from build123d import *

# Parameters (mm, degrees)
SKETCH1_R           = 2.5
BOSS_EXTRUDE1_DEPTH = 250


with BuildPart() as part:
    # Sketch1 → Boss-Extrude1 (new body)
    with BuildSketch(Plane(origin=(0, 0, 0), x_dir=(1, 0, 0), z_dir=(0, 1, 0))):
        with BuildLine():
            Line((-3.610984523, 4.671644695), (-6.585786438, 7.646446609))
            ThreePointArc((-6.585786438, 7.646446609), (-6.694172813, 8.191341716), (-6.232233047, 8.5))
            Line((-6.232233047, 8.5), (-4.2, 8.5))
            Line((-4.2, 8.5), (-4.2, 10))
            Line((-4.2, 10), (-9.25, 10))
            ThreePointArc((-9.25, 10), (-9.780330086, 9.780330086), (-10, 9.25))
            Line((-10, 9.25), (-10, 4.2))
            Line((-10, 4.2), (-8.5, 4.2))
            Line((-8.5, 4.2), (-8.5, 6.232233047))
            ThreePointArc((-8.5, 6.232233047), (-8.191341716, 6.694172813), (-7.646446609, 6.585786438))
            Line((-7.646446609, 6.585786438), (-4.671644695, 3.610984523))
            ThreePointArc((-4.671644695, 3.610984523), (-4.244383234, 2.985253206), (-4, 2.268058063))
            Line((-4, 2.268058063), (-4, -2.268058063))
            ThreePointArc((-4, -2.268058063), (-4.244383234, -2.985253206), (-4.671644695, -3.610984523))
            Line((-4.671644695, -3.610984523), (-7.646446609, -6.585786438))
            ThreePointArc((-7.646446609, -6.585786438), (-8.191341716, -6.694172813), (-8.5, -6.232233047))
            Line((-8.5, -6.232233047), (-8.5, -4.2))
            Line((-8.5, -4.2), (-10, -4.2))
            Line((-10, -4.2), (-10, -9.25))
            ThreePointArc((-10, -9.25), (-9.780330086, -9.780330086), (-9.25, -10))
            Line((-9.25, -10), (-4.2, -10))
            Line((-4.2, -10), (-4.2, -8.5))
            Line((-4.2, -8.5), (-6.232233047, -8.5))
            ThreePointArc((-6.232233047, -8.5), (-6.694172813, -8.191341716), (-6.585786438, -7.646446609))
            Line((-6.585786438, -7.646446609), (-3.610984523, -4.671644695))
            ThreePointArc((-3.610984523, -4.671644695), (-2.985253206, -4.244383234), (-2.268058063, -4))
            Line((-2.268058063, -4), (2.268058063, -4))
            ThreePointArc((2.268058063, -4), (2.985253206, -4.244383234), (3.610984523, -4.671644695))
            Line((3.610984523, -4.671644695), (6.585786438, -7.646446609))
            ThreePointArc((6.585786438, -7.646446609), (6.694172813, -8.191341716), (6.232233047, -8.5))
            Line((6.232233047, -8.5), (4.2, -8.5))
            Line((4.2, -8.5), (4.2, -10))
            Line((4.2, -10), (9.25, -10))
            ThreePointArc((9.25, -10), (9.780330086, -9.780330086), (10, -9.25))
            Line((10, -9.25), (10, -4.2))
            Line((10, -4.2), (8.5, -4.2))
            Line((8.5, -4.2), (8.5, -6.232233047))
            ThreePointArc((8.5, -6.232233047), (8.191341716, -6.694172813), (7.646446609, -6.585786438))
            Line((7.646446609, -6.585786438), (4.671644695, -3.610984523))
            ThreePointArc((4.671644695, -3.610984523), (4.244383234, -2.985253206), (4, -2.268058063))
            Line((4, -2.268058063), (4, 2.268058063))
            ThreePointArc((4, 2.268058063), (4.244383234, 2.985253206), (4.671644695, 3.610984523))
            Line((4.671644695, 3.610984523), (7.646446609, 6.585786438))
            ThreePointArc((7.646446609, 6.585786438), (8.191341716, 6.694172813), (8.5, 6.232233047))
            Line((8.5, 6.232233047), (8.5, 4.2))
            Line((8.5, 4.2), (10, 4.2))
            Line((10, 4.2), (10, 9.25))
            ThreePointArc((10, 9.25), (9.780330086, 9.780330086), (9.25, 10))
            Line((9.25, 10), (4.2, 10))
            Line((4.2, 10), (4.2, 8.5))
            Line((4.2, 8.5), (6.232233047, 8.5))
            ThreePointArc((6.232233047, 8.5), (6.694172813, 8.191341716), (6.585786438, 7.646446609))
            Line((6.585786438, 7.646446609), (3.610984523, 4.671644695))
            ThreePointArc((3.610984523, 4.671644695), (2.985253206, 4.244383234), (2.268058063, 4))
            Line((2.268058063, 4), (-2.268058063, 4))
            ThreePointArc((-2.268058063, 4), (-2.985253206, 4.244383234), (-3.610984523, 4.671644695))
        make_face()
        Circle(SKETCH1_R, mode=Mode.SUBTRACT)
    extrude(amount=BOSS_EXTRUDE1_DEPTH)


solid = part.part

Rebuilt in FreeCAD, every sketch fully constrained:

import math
import FreeCAD as App
import Part
import Sketcher

V = App.Vector
Q = App.Units.Quantity

doc = App.newDocument("Part")
params = doc.addObject("Spreadsheet::Sheet", "Params")
for row, (alias, value) in enumerate([
    ("sketch1_diameter", "5 mm"),
    ("sketch1_radius", "0.5 mm"),
    ("sketch1_radius2", "0.75 mm"),
    ("sketch1_width", "1.5 mm"),
    ("sketch1_width2", "5.05 mm"),
    ("pad1_length", "250 mm"),
], start=1):
    params.set(f"A{row}", alias)
    params.set(f"B{row}", "=" + value)
    params.setAlias(f"B{row}", alias)

body = doc.addObject("PartDesign::Body", "Body")

sketch1 = doc.addObject("Sketcher::SketchObject", "Sketch")
body.addObject(sketch1)
sketch1.AttachmentSupport = (doc.XZ_Plane, [""])
sketch1.MapMode = "FlatFace"
sketch1.addGeometry([
    Part.LineSegment(V(-3.6, -4.7, 0), V(-6.6, -7.6, 0)),
    Part.ArcOfCircle(Part.Circle(V(-6.2, -8, 0), V(0, 0, 1), 0.5), math.radians(135), math.radians(270)),
    Part.LineSegment(V(-6.2, -8.5, 0), V(-4.2, -8.5, 0)),
    Part.LineSegment(V(-4.2, -8.5, 0), V(-4.2, -10, 0)),
    Part.LineSegment(V(-4.2, -10, 0), V(-9.2, -10, 0)),
    Part.ArcOfCircle(Part.Circle(V(-9.2, -9.2, 0), V(0, 0, 1), 0.8), math.radians(180), math.radians(270)),
    Part.LineSegment(V(-10, -9.2, 0), V(-10, -4.2, 0)),
    Part.LineSegment(V(-10, -4.2, 0), V(-8.5, -4.2, 0)),
    Part.LineSegment(V(-8.5, -4.2, 0), V(-8.5, -6.2, 0)),
    Part.ArcOfCircle(Part.Circle(V(-8, -6.2, 0), V(0, 0, 1), 0.5), math.radians(-180), math.radians(-45)),
    Part.LineSegment(V(-7.6, -6.6, 0), V(-4.7, -3.6, 0)),
    Part.ArcOfCircle(Part.Circle(V(-6.8, -1.7, 0), V(0, 0, 1), 2.8), math.radians(-42), math.radians(-11)),
    Part.LineSegment(V(-4, -2.3, 0), V(-4, 2.3, 0)),
    Part.ArcOfCircle(Part.Circle(V(-6.8, 1.7, 0), V(0, 0, 1), 2.8), math.radians(11), math.radians(42)),
    Part.LineSegment(V(-4.7, 3.6, 0), V(-7.6, 6.6, 0)),
    Part.ArcOfCircle(Part.Circle(V(-8, 6.2, 0), V(0, 0, 1), 0.5), math.radians(45), math.radians(180)),
    Part.LineSegment(V(-8.5, 6.2, 0), V(-8.5, 4.2, 0)),
    Part.LineSegment(V(-8.5, 4.2, 0), V(-10, 4.2, 0)),
    Part.LineSegment(V(-10, 4.2, 0), V(-10, 9.2, 0)),
    Part.ArcOfCircle(Part.Circle(V(-9.2, 9.2, 0), V(0, 0, 1), 0.8), math.radians(90), math.radians(180)),
    Part.LineSegment(V(-9.2, 10, 0), V(-4.2, 10, 0)),
    Part.LineSegment(V(-4.2, 10, 0), V(-4.2, 8.5, 0)),
    Part.LineSegment(V(-4.2, 8.5, 0), V(-6.2, 8.5, 0)),
    Part.ArcOfCircle(Part.Circle(V(-6.2, 8, 0), V(0, 0, 1), 0.5), math.radians(90), math.radians(225)),
    Part.LineSegment(V(-6.6, 7.6, 0), V(-3.6, 4.7, 0)),
    Part.ArcOfCircle(Part.Circle(V(-1.7, 6.8, 0), V(0, 0, 1), 2.8), math.radians(-132), math.radians(-101)),
    Part.LineSegment(V(-2.3, 4, 0), V(2.3, 4, 0)),
    Part.ArcOfCircle(Part.Circle(V(1.7, 6.8, 0), V(0, 0, 1), 2.8), math.radians(-79), math.radians(-48)),
    Part.LineSegment(V(3.6, 4.7, 0), V(6.6, 7.6, 0)),
    Part.ArcOfCircle(Part.Circle(V(6.2, 8, 0), V(0, 0, 1), 0.5), math.radians(-45), math.radians(90)),
    Part.LineSegment(V(6.2, 8.5, 0), V(4.2, 8.5, 0)),
    Part.LineSegment(V(4.2, 8.5, 0), V(4.2, 10, 0)),
    Part.LineSegment(V(4.2, 10, 0), V(9.2, 10, 0)),
    Part.ArcOfCircle(Part.Circle(V(9.2, 9.2, 0), V(0, 0, 1), 0.8), math.radians(0), math.radians(90)),
    Part.LineSegment(V(10, 9.2, 0), V(10, 4.2, 0)),
    Part.LineSegment(V(10, 4.2, 0), V(8.5, 4.2, 0)),
    Part.LineSegment(V(8.5, 4.2, 0), V(8.5, 6.2, 0)),
    Part.ArcOfCircle(Part.Circle(V(8, 6.2, 0), V(0, 0, 1), 0.5), math.radians(0), math.radians(135)),
    Part.LineSegment(V(7.6, 6.6, 0), V(4.7, 3.6, 0)),
    Part.ArcOfCircle(Part.Circle(V(6.8, 1.7, 0), V(0, 0, 1), 2.8), math.radians(138), math.radians(169)),
    Part.LineSegment(V(4, 2.3, 0), V(4, -2.3, 0)),
    Part.ArcOfCircle(Part.Circle(V(6.8, -1.7, 0), V(0, 0, 1), 2.8), math.radians(-169), math.radians(-138)),
    Part.LineSegment(V(4.7, -3.6, 0), V(7.6, -6.6, 0)),
    Part.ArcOfCircle(Part.Circle(V(8, -6.2, 0), V(0, 0, 1), 0.5), math.radians(-135), math.radians(0)),
    Part.LineSegment(V(8.5, -6.2, 0), V(8.5, -4.2, 0)),
    Part.LineSegment(V(8.5, -4.2, 0), V(10, -4.2, 0)),
    Part.LineSegment(V(10, -4.2, 0), V(10, -9.2, 0)),
    Part.ArcOfCircle(Part.Circle(V(9.2, -9.2, 0), V(0, 0, 1), 0.8), math.radians(-90), math.radians(0)),
    Part.LineSegment(V(9.2, -10, 0), V(4.2, -10, 0)),
    Part.LineSegment(V(4.2, -10, 0), V(4.2, -8.5, 0)),
    Part.LineSegment(V(4.2, -8.5, 0), V(6.2, -8.5, 0)),
    Part.ArcOfCircle(Part.Circle(V(6.2, -8, 0), V(0, 0, 1), 0.5), math.radians(-90), math.radians(45)),
    Part.LineSegment(V(6.6, -7.6, 0), V(3.6, -4.7, 0)),
    Part.ArcOfCircle(Part.Circle(V(1.7, -6.8, 0), V(0, 0, 1), 2.8), math.radians(48), math.radians(79)),
    Part.LineSegment(V(2.3, -4, 0), V(-2.3, -4, 0)),
    Part.ArcOfCircle(Part.Circle(V(-1.7, -6.8, 0), V(0, 0, 1), 2.8), math.radians(101), math.radians(132)),
    Part.Circle(V(0, 0, 0), V(0, 0, 1), 2.5),
], False)
sketch1.addConstraint([
    Sketcher.Constraint("Tangent", 0, 2, 1, 1),
    Sketcher.Constraint("Tangent", 1, 2, 2, 1),
    Sketcher.Constraint("Coincident", 2, 2, 3, 1),
    Sketcher.Constraint("Coincident", 3, 2, 4, 1),
    Sketcher.Constraint("Tangent", 4, 2, 5, 2),
    Sketcher.Constraint("Tangent", 5, 1, 6, 1),
    Sketcher.Constraint("Coincident", 6, 2, 7, 1),
    Sketcher.Constraint("Coincident", 7, 2, 8, 1),
    Sketcher.Constraint("Tangent", 8, 2, 9, 1),
    Sketcher.Constraint("Tangent", 9, 2, 10, 1),
    Sketcher.Constraint("Coincident", 10, 2, 11, 1),
    Sketcher.Constraint("Coincident", 11, 2, 12, 1),
    Sketcher.Constraint("Coincident", 12, 2, 13, 1),
    Sketcher.Constraint("Coincident", 13, 2, 14, 1),
    Sketcher.Constraint("Tangent", 14, 2, 15, 1),
    Sketcher.Constraint("Tangent", 15, 2, 16, 1),
    Sketcher.Constraint("Coincident", 16, 2, 17, 1),
    Sketcher.Constraint("Coincident", 17, 2, 18, 1),
    Sketcher.Constraint("Tangent", 18, 2, 19, 2),
    Sketcher.Constraint("Tangent", 19, 1, 20, 1),
    Sketcher.Constraint("Coincident", 20, 2, 21, 1),
    Sketcher.Constraint("Coincident", 21, 2, 22, 1),
    Sketcher.Constraint("Tangent", 22, 2, 23, 1),
    Sketcher.Constraint("Tangent", 23, 2, 24, 1),
    Sketcher.Constraint("Coincident", 24, 2, 25, 1),
    Sketcher.Constraint("Coincident", 25, 2, 26, 1),
    Sketcher.Constraint("Coincident", 26, 2, 27, 1),
    Sketcher.Constraint("Coincident", 27, 2, 28, 1),
    Sketcher.Constraint("Tangent", 28, 2, 29, 1),
    Sketcher.Constraint("Tangent", 29, 2, 30, 1),
    Sketcher.Constraint("Coincident", 30, 2, 31, 1),
    Sketcher.Constraint("Coincident", 31, 2, 32, 1),
    Sketcher.Constraint("Tangent", 32, 2, 33, 2),
    Sketcher.Constraint("Tangent", 33, 1, 34, 1),
    Sketcher.Constraint("Coincident", 34, 2, 35, 1),
    Sketcher.Constraint("Coincident", 35, 2, 36, 1),
    Sketcher.Constraint("Tangent", 36, 2, 37, 1),
    Sketcher.Constraint("Tangent", 37, 2, 38, 1),
    Sketcher.Constraint("Coincident", 38, 2, 39, 1),
    Sketcher.Constraint("Coincident", 39, 2, 40, 1),
    Sketcher.Constraint("Coincident", 40, 2, 41, 1),
    Sketcher.Constraint("Coincident", 41, 2, 42, 1),
    Sketcher.Constraint("Tangent", 42, 2, 43, 1),
    Sketcher.Constraint("Tangent", 43, 2, 44, 1),
    Sketcher.Constraint("Coincident", 44, 2, 45, 1),
    Sketcher.Constraint("Coincident", 45, 2, 46, 1),
    Sketcher.Constraint("Tangent", 46, 2, 47, 2),
    Sketcher.Constraint("Tangent", 47, 1, 48, 1),
    Sketcher.Constraint("Coincident", 48, 2, 49, 1),
    Sketcher.Constraint("Coincident", 49, 2, 50, 1),
    Sketcher.Constraint("Tangent", 50, 2, 51, 1),
    Sketcher.Constraint("Tangent", 51, 2, 52, 1),
    Sketcher.Constraint("Coincident", 52, 2, 53, 1),
    Sketcher.Constraint("Coincident", 53, 2, 54, 1),
    Sketcher.Constraint("Coincident", 54, 2, 55, 1),
    Sketcher.Constraint("Coincident", 55, 2, 0, 1),
    Sketcher.Constraint("Horizontal", 2),
    Sketcher.Constraint("Vertical", 3),
    Sketcher.Constraint("Horizontal", 4),
    Sketcher.Constraint("Vertical", 6),
    Sketcher.Constraint("Horizontal", 7),
    Sketcher.Constraint("Vertical", 8),
    Sketcher.Constraint("Vertical", 12),
    Sketcher.Constraint("Vertical", 16),
    Sketcher.Constraint("Horizontal", 17),
    Sketcher.Constraint("Vertical", 18),
    Sketcher.Constraint("Horizontal", 20),
    Sketcher.Constraint("Vertical", 21),
    Sketcher.Constraint("Horizontal", 22),
    Sketcher.Constraint("Horizontal", 26),
    Sketcher.Constraint("Horizontal", 30),
    Sketcher.Constraint("Vertical", 31),
    Sketcher.Constraint("Horizontal", 32),
    Sketcher.Constraint("Vertical", 34),
    Sketcher.Constraint("Horizontal", 35),
    Sketcher.Constraint("Vertical", 36),
    Sketcher.Constraint("Vertical", 40),
    Sketcher.Constraint("Vertical", 44),
    Sketcher.Constraint("Horizontal", 45),
    Sketcher.Constraint("Vertical", 46),
    Sketcher.Constraint("Horizontal", 48),
    Sketcher.Constraint("Vertical", 49),
    Sketcher.Constraint("Horizontal", 50),
    Sketcher.Constraint("Horizontal", 54),
    Sketcher.Constraint("Coincident", 56, 3, -1, 1),
    Sketcher.Constraint("Equal", 1, 9),
    Sketcher.Constraint("Equal", 11, 13),
    Sketcher.Constraint("Equal", 9, 15),
    Sketcher.Constraint("Equal", 5, 19),
    Sketcher.Constraint("Equal", 15, 23),
    Sketcher.Constraint("Equal", 13, 25),
    Sketcher.Constraint("Equal", 25, 27),
    Sketcher.Constraint("Equal", 23, 29),
    Sketcher.Constraint("Equal", 19, 33),
    Sketcher.Constraint("Equal", 29, 37),
    Sketcher.Constraint("Equal", 27, 39),
    Sketcher.Constraint("Equal", 39, 41),
    Sketcher.Constraint("Equal", 37, 43),
    Sketcher.Constraint("Equal", 33, 47),
    Sketcher.Constraint("Equal", 43, 51),
    Sketcher.Constraint("Equal", 41, 53),
    Sketcher.Constraint("Equal", 53, 55),
    Sketcher.Constraint("Symmetric", 1, 3, 29, 3, -1, 1),
    Sketcher.Constraint("Symmetric", 5, 3, 33, 3, -1, 1),
    Sketcher.Constraint("Symmetric", 9, 3, 37, 3, -1, 1),
    Sketcher.Constraint("Symmetric", 11, 3, 39, 3, -1, 1),
    Sketcher.Constraint("Symmetric", 13, 3, 41, 3, -1, 1),
    Sketcher.Constraint("Symmetric", 15, 3, 43, 3, -1, 1),
    Sketcher.Constraint("Symmetric", 19, 3, 47, 3, -1, 1),
    Sketcher.Constraint("Symmetric", 23, 3, 51, 3, -1, 1),
    Sketcher.Constraint("Symmetric", 25, 3, 53, 3, -1, 1),
    Sketcher.Constraint("Symmetric", 27, 3, 55, 3, -1, 1),
    Sketcher.Constraint("Symmetric", 25, 3, 27, 3, -2),
    Sketcher.Constraint("Symmetric", 23, 3, 29, 3, -2),
    Sketcher.Constraint("Symmetric", 19, 3, 33, 3, -2),
    Sketcher.Constraint("Symmetric", 15, 3, 37, 3, -2),
    Sketcher.Constraint("Symmetric", 13, 3, 39, 3, -2),
    Sketcher.Constraint("Parallel", 0, 10),
    Sketcher.Constraint("Perpendicular", 10, 14),
    Sketcher.Constraint("Parallel", 14, 24),
    Sketcher.Constraint("Perpendicular", 24, 28),
    Sketcher.Constraint("Parallel", 28, 38),
    Sketcher.Constraint("Perpendicular", 38, 42),
    Sketcher.Constraint("Parallel", 42, 52),
    Sketcher.Constraint("Horizontal", 24, 2, 27, 2),
    Sketcher.Constraint("Horizontal", 17, 2, 34, 2),
    Sketcher.Constraint("Horizontal", 12, 2, 39, 2),
    Sketcher.Constraint("Horizontal", 7, 2, 44, 2),
    Sketcher.Constraint("Vertical", 3, 2, 20, 2),
    Sketcher.Constraint("Vertical", 31, 2, 48, 2),
    Sketcher.Constraint("Vertical", 26, 2, 53, 2),
    Sketcher.Constraint("Equal", 22, 30),
    Sketcher.Constraint("Equal", 45, 3),
    Sketcher.Constraint("Equal", 48, 6),
    Sketcher.Constraint("Equal", 50, 8),
    Sketcher.Constraint("Equal", 54, 12),
    Sketcher.Constraint("Equal", 8, 16),
    Sketcher.Constraint("Equal", 0, 10),
    Sketcher.Constraint("Diameter", 56, Q("5 mm")),
    Sketcher.Constraint("Radius", 1, Q("0.5 mm")),
    Sketcher.Constraint("Radius", 5, Q("0.75 mm")),
    Sketcher.Constraint("DistanceX", 7, 1, 7, 2, Q("1.5 mm")),
    Sketcher.Constraint("DistanceY", 1, 3, -1, 1, Q("8 mm")),
    Sketcher.Constraint("DistanceX", 9, 3, -1, 1, Q("8 mm")),
    Sketcher.Constraint("DistanceX", 11, 2, -1, 1, Q("4 mm")),
    Sketcher.Constraint("DistanceY", -1, 1, 25, 2, Q("4 mm")),
    Sketcher.Constraint("DistanceX", 4, 2, 4, 1, Q("5.05 mm")),
    Sketcher.Constraint("Radius", 11, Q("2.807638 mm")),
    Sketcher.Constraint("DistanceX", 2, 1, 2, 2, Q("2.032233 mm")),
    Sketcher.Constraint("DistanceX", 26, 1, 26, 2, Q("4.536116 mm")),
    Sketcher.Constraint("DistanceY", 11, 3, -1, 1, Q("1.729368 mm")),
])
sketch1.setExpression("Constraints[138]", "Params.sketch1_diameter")
sketch1.setExpression("Constraints[139]", "Params.sketch1_radius")
sketch1.setExpression("Constraints[140]", "Params.sketch1_radius2")
sketch1.setExpression("Constraints[141]", "Params.sketch1_width")
sketch1.setExpression("Constraints[146]", "Params.sketch1_width2")
pad1 = doc.addObject("PartDesign::Pad", "Pad")
body.addObject(pad1)
pad1.Profile = sketch1
pad1.setExpression("Length", "Params.pad1_length")
pad1.Reversed = True

doc.recompute()
